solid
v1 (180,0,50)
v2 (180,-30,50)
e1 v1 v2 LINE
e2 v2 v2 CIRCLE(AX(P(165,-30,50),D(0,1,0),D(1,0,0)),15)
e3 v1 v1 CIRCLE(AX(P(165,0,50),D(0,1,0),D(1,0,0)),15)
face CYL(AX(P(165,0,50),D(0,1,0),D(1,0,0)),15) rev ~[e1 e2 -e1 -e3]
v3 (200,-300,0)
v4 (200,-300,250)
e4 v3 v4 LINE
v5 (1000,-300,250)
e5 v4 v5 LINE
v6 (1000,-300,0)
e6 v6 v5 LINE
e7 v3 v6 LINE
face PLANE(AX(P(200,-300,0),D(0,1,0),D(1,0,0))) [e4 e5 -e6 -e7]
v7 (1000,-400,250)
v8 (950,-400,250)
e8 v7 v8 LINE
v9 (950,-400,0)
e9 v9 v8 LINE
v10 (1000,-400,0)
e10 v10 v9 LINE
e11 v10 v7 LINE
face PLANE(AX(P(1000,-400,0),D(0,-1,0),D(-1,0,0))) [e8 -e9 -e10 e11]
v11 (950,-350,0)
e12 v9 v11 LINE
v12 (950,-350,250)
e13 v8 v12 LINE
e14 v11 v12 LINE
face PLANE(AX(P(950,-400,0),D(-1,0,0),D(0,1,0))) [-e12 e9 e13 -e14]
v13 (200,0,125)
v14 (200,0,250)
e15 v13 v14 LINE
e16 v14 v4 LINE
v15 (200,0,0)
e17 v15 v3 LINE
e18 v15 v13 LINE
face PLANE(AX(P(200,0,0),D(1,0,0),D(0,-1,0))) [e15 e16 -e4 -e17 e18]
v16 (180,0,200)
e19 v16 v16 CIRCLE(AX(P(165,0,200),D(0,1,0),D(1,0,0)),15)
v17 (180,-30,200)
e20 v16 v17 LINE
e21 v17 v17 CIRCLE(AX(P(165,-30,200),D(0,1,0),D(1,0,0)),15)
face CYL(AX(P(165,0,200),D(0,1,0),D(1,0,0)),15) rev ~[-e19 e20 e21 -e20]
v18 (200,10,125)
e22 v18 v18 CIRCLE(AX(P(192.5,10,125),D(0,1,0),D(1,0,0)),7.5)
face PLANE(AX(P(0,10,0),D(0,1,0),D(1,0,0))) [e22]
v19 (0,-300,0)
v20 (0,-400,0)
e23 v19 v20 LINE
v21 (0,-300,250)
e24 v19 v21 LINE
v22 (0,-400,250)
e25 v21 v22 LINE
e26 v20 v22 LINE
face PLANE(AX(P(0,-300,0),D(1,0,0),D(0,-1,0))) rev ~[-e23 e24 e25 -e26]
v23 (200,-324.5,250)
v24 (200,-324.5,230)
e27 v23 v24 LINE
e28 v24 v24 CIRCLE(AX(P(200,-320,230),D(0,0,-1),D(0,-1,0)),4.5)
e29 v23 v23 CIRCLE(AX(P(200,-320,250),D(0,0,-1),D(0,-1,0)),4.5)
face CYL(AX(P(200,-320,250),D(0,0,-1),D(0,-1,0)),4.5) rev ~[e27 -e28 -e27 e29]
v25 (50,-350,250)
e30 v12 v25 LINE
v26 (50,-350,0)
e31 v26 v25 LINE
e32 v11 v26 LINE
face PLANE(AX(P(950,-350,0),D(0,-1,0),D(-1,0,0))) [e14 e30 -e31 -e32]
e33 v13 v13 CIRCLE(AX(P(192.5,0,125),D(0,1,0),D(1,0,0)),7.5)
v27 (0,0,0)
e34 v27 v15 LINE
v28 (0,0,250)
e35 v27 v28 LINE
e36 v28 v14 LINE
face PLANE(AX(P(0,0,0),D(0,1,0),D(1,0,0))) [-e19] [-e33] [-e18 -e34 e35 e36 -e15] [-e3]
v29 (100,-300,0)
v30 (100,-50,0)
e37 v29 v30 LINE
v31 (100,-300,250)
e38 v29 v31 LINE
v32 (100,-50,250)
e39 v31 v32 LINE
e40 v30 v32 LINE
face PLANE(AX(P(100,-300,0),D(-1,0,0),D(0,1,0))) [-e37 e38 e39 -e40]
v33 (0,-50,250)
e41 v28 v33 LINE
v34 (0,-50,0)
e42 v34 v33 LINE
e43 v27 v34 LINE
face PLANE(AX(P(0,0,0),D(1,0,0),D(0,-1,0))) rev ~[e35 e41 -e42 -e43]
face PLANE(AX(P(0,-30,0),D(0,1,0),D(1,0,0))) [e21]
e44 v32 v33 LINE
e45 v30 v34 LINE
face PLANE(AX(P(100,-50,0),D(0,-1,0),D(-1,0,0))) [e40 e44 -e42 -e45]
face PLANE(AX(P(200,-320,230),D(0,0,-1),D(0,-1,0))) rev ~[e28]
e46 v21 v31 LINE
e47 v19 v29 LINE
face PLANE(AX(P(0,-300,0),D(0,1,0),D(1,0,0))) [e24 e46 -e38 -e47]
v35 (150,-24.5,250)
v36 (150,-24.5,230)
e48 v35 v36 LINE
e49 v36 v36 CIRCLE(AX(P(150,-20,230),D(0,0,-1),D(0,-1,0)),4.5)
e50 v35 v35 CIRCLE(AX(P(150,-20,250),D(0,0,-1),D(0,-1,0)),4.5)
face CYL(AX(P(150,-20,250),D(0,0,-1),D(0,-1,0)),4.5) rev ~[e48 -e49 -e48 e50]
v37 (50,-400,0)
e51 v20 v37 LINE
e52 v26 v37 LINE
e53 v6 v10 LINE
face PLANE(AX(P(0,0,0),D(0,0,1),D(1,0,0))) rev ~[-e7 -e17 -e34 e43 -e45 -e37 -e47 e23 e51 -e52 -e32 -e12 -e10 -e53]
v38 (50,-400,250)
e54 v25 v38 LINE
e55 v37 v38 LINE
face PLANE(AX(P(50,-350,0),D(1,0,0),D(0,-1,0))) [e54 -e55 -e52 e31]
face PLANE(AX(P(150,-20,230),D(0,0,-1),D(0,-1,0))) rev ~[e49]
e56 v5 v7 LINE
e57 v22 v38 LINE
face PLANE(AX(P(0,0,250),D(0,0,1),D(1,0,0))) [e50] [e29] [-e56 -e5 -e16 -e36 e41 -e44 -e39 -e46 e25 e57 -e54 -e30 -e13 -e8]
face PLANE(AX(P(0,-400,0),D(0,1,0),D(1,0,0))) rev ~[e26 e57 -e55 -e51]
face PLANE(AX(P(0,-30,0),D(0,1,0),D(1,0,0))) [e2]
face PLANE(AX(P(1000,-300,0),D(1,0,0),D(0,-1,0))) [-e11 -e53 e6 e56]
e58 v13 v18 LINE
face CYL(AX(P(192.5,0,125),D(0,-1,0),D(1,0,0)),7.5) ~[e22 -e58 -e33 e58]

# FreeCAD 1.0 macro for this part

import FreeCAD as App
import Part
import Sketcher

doc = App.newDocument("Part")
body = doc.addObject("PartDesign::Body", "Body")

# Sketch on XY plane
sketch1 = body.newObject("Sketcher::SketchObject", "Sketch")
sketch1.AttachmentSupport = (doc.getObject("XY_Plane"), [""])
sketch1.MapMode = "FlatFace"
sketch1.addGeometry(Part.LineSegment(App.Vector(200, 0, 0), App.Vector(0, 0, 0)), False)
sketch1.addGeometry(Part.LineSegment(App.Vector(0, 0, 0), App.Vector(0, -50, 0)), False)
sketch1.addGeometry(Part.LineSegment(App.Vector(0, -50, 0), App.Vector(100, -50, 0)), False)
sketch1.addGeometry(Part.LineSegment(App.Vector(100, -50, 0), App.Vector(100, -300, 0)), False)
sketch1.addGeometry(Part.LineSegment(App.Vector(100, -300, 0), App.Vector(0, -300, 0)), False)
sketch1.addGeometry(Part.LineSegment(App.Vector(0, -300, 0), App.Vector(0, -400, 0)), False)
sketch1.addGeometry(Part.LineSegment(App.Vector(0, -400, 0), App.Vector(50, -400, 0)), False)
sketch1.addGeometry(Part.LineSegment(App.Vector(50, -400, 0), App.Vector(50, -350, 0)), False)
sketch1.addGeometry(Part.LineSegment(App.Vector(50, -350, 0), App.Vector(950, -350, 0)), False)
sketch1.addGeometry(Part.LineSegment(App.Vector(950, -350, 0), App.Vector(950, -400, 0)), False)
sketch1.addGeometry(Part.LineSegment(App.Vector(950, -400, 0), App.Vector(1000, -400, 0)), False)
sketch1.addGeometry(Part.LineSegment(App.Vector(1000, -400, 0), App.Vector(1000, -300, 0)), False)
sketch1.addGeometry(Part.LineSegment(App.Vector(1000, -300, 0), App.Vector(200, -300, 0)), False)
sketch1.addGeometry(Part.LineSegment(App.Vector(200, -300, 0), App.Vector(200, 0, 0)), False)
sketch1.addConstraint(Sketcher.Constraint("Coincident", 0, 2, 1, 1))
sketch1.addConstraint(Sketcher.Constraint("Coincident", 1, 2, 2, 1))
sketch1.addConstraint(Sketcher.Constraint("Coincident", 2, 2, 3, 1))
sketch1.addConstraint(Sketcher.Constraint("Coincident", 3, 2, 4, 1))
sketch1.addConstraint(Sketcher.Constraint("Coincident", 4, 2, 5, 1))
sketch1.addConstraint(Sketcher.Constraint("Coincident", 5, 2, 6, 1))
sketch1.addConstraint(Sketcher.Constraint("Coincident", 6, 2, 7, 1))
sketch1.addConstraint(Sketcher.Constraint("Coincident", 7, 2, 8, 1))
sketch1.addConstraint(Sketcher.Constraint("Coincident", 8, 2, 9, 1))
sketch1.addConstraint(Sketcher.Constraint("Coincident", 9, 2, 10, 1))
sketch1.addConstraint(Sketcher.Constraint("Coincident", 10, 2, 11, 1))
sketch1.addConstraint(Sketcher.Constraint("Coincident", 11, 2, 12, 1))
sketch1.addConstraint(Sketcher.Constraint("Coincident", 12, 2, 13, 1))
sketch1.addConstraint(Sketcher.Constraint("Coincident", 13, 2, 0, 1))
sketch1.addConstraint(Sketcher.Constraint("Horizontal", 0))
sketch1.addConstraint(Sketcher.Constraint("Vertical", 1))
sketch1.addConstraint(Sketcher.Constraint("Horizontal", 2))
sketch1.addConstraint(Sketcher.Constraint("Vertical", 3))
sketch1.addConstraint(Sketcher.Constraint("Horizontal", 4))
sketch1.addConstraint(Sketcher.Constraint("Vertical", 5))
sketch1.addConstraint(Sketcher.Constraint("Horizontal", 6))
sketch1.addConstraint(Sketcher.Constraint("Vertical", 7))
sketch1.addConstraint(Sketcher.Constraint("Horizontal", 8))
sketch1.addConstraint(Sketcher.Constraint("Vertical", 9))
sketch1.addConstraint(Sketcher.Constraint("Horizontal", 10))
sketch1.addConstraint(Sketcher.Constraint("Vertical", 11))
sketch1.addConstraint(Sketcher.Constraint("Horizontal", 12))
sketch1.addConstraint(Sketcher.Constraint("Vertical", 13))
sketch1.addConstraint(Sketcher.Constraint("Coincident", 0, 2, -1, 1))
sketch1.addConstraint(Sketcher.Constraint("PointOnObject", 4, 2, -2))
sketch1.addConstraint(Sketcher.Constraint("Horizontal", 6, 2, 9, 2))
sketch1.addConstraint(Sketcher.Constraint("Horizontal", 4, 2, 11, 2))
sketch1.addConstraint(Sketcher.Constraint("Equal", 6, 10))
sketch1.addConstraint(Sketcher.Constraint("Equal", 10, 1))
sketch1.addConstraint(Sketcher.Constraint("Equal", 4, 5))
sketch1.addConstraint(Sketcher.Constraint("Equal", 1, 7))
sketch1.addConstraint(Sketcher.Constraint("DistanceX", 0, 2, 0, 1, 200.0))
sketch1.addConstraint(Sketcher.Constraint("DistanceX", 2, 1, 2, 2, 100.0))
sketch1.addConstraint(Sketcher.Constraint("DistanceX", 6, 1, 6, 2, 50.0))
sketch1.addConstraint(Sketcher.Constraint("DistanceX", 8, 1, 8, 2, 900.0))
sketch1.addConstraint(Sketcher.Constraint("DistanceY", 3, 2, 3, 1, 250.0))
pad1 = body.newObject("PartDesign::Pad", "Pad")
pad1.Profile = sketch1
pad1.Length = 250

# Sketch on XZ plane
sketch2 = body.newObject("Sketcher::SketchObject", "Sketch001")
sketch2.AttachmentSupport = (doc.getObject("XZ_Plane"), [""])
sketch2.MapMode = "FlatFace"
sketch2.addGeometry(Part.Circle(App.Vector(192, 125, 0), App.Vector(0, 0, 1), 8), False)
sketch2.addConstraint(Sketcher.Constraint("Diameter", 0, 15.0))
sketch2.addConstraint(Sketcher.Constraint("DistanceY", -1, 1, 0, 3, 125.0))
sketch2.addConstraint(Sketcher.Constraint("DistanceX", -1, 1, 0, 3, 192.5))
pad2 = body.newObject("PartDesign::Pad", "Pad001")
pad2.Profile = sketch2
pad2.Length = 10
pad2.Reversed = True

# Sketch on XZ plane
sketch3 = body.newObject("Sketcher::SketchObject", "Sketch002")
sketch3.AttachmentSupport = (doc.getObject("XZ_Plane"), [""])
sketch3.MapMode = "FlatFace"
sketch3.addGeometry(Part.Circle(App.Vector(165, 50, 0), App.Vector(0, 0, 1), 15), False)
sketch3.addGeometry(Part.Circle(App.Vector(165, 200, 0), App.Vector(0, 0, 1), 15), False)
sketch3.addConstraint(Sketcher.Constraint("Equal", 0, 1))
sketch3.addConstraint(Sketcher.Constraint("Vertical", 0, 3, 1, 3))
sketch3.addConstraint(Sketcher.Constraint("Diameter", 0, 30.0))
sketch3.addConstraint(Sketcher.Constraint("DistanceY", -1, 1, 0, 3, 50.0))
sketch3.addConstraint(Sketcher.Constraint("DistanceY", 0, 3, 1, 3, 150.0))
sketch3.addConstraint(Sketcher.Constraint("DistanceX", -1, 1, 0, 3, 165.0))
pocket1 = body.newObject("PartDesign::Pocket", "Pocket")
pocket1.Profile = sketch3
pocket1.Length = 30
pocket1.Reversed = True

# Sketch on XY plane
sketch4 = body.newObject("Sketcher::SketchObject", "Sketch003")
sketch4.AttachmentSupport = (doc.getObject("XY_Plane"), [""])
sketch4.MapMode = "FlatFace"
sketch4.AttachmentOffset = App.Placement(App.Vector(0, 0, 250), App.Rotation())
sketch4.addGeometry(Part.Circle(App.Vector(150, -20, 0), App.Vector(0, 0, 1), 4.5), False)
sketch4.addConstraint(Sketcher.Constraint("Diameter", 0, 9.0))
sketch4.addConstraint(Sketcher.Constraint("DistanceX", -1, 1, 0, 3, 150.0))
sketch4.addConstraint(Sketcher.Constraint("DistanceY", 0, 3, -1, 1, 20.0))
doc.recompute()
hole = body.newObject("PartDesign::Hole", "Hole")
hole.Profile = sketch4
hole.ThreadType = "None"
hole.Diameter = 9
hole.DepthType = "Dimension"
hole.Depth = 20
hole.DrillPoint = "Flat"

# Sketch on XY plane
sketch5 = body.newObject("Sketcher::SketchObject", "Sketch004")
sketch5.AttachmentSupport = (doc.getObject("XY_Plane"), [""])
sketch5.MapMode = "FlatFace"
sketch5.AttachmentOffset = App.Placement(App.Vector(0, 0, 250), App.Rotation())
sketch5.addGeometry(Part.Circle(App.Vector(200, -320, 0), App.Vector(0, 0, 1), 4.5), False)
sketch5.addConstraint(Sketcher.Constraint("Diameter", 0, 9.0))
sketch5.addConstraint(Sketcher.Constraint("DistanceX", -1, 1, 0, 3, 200.0))
sketch5.addConstraint(Sketcher.Constraint("DistanceY", 0, 3, -1, 1, 320.0))
doc.recompute()
hole2 = body.newObject("PartDesign::Hole", "Hole001")
hole2.Profile = sketch5
hole2.ThreadType = "None"
hole2.Diameter = 9
hole2.DepthType = "Dimension"
hole2.Depth = 20
hole2.DrillPoint = "Flat"

doc.recompute()
